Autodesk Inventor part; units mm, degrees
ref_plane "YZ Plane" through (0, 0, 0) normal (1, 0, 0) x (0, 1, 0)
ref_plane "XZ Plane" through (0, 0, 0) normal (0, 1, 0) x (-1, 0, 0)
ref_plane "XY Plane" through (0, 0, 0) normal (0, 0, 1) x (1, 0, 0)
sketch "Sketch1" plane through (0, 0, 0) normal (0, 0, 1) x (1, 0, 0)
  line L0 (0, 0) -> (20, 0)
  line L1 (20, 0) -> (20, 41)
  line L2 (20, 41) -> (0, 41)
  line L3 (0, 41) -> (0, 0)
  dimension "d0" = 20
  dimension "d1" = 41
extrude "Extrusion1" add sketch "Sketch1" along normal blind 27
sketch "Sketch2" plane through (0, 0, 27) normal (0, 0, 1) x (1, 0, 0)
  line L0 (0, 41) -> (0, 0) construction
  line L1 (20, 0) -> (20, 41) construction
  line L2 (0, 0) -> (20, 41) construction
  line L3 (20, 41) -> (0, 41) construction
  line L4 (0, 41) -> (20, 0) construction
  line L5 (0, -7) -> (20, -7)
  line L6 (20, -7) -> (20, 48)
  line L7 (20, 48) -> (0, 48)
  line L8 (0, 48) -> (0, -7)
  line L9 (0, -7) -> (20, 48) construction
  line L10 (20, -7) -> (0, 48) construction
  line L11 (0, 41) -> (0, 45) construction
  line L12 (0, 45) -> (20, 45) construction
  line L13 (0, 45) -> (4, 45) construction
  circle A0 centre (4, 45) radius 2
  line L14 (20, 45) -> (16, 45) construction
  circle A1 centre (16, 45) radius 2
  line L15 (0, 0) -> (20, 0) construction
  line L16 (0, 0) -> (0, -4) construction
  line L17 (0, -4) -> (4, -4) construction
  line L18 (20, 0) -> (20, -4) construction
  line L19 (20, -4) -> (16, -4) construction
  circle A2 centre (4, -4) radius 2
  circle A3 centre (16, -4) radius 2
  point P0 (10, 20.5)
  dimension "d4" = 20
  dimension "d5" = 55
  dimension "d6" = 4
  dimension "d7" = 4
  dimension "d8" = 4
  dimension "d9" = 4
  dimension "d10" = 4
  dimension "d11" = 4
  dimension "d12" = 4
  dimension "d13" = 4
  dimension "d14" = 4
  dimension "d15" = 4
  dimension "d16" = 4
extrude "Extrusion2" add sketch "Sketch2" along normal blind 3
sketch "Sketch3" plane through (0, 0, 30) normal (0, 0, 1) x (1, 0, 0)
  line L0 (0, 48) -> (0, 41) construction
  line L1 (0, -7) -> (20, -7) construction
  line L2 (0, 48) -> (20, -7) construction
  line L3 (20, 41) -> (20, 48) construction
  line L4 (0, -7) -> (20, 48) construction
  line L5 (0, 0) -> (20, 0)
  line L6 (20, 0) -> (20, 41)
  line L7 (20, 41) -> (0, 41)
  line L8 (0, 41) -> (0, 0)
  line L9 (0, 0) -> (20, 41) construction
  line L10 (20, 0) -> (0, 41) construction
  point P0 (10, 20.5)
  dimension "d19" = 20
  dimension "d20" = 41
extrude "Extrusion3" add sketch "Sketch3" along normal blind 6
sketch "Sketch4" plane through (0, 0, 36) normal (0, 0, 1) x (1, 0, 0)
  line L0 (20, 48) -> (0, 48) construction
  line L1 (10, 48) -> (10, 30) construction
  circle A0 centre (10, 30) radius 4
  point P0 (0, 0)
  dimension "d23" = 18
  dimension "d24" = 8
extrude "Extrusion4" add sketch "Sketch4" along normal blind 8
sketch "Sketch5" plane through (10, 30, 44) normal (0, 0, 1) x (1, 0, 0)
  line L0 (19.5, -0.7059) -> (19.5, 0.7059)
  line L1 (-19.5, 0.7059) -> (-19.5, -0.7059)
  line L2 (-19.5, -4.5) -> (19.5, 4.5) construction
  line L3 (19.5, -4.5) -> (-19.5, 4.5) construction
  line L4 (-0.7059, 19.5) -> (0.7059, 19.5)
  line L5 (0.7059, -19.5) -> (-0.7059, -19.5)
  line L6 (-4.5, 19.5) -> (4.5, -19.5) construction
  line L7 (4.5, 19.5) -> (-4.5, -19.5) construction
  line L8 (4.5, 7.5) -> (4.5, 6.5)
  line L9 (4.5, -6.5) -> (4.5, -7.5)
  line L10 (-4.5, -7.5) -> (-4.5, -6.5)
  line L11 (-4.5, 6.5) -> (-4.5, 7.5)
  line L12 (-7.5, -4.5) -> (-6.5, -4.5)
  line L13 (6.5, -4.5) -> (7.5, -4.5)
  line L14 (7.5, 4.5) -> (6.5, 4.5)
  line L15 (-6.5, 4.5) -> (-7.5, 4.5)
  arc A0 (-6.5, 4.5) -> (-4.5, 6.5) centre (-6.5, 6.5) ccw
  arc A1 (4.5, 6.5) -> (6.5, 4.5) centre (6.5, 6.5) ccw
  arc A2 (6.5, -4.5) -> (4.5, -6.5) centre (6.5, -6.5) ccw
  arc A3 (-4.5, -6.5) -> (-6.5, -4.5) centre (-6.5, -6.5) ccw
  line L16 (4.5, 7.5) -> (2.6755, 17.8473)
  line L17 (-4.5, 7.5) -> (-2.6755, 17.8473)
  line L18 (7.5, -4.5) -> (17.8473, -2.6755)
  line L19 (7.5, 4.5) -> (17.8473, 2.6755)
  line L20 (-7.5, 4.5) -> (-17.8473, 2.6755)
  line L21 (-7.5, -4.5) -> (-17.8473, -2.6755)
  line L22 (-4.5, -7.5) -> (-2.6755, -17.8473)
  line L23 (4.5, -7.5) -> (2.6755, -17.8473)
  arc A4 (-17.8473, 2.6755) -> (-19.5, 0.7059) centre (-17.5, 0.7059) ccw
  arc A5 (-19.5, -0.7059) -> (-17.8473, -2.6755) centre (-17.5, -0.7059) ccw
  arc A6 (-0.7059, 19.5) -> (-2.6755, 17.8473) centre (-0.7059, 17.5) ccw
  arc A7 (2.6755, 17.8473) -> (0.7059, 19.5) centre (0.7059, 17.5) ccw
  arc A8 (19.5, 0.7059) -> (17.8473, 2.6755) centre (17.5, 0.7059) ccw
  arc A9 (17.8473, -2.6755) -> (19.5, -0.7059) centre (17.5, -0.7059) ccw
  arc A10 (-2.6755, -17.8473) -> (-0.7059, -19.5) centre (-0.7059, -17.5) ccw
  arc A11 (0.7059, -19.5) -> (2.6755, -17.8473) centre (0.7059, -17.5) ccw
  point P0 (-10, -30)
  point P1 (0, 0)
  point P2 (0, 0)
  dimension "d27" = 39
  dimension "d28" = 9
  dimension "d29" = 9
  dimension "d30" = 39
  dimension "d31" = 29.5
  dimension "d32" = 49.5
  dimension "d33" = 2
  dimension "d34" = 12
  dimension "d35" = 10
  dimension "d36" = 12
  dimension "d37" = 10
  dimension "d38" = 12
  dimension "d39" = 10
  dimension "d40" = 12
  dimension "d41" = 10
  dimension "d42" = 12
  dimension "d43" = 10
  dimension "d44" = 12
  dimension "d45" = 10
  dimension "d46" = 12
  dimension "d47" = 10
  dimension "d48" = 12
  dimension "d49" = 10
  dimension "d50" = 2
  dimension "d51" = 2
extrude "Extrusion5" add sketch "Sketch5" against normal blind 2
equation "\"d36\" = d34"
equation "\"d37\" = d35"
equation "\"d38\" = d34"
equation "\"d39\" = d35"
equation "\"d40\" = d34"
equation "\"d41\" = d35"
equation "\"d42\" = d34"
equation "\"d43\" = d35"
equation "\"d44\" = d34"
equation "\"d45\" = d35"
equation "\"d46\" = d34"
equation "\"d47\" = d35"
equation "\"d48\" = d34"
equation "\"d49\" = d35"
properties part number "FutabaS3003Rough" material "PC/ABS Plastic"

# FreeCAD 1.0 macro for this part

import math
import FreeCAD as App
import Part
import Sketcher
Q = App.Units.Quantity

doc = App.newDocument("Part")
body = doc.addObject("PartDesign::Body", "Body")

# Sketch on XY plane
sketch1 = body.newObject("Sketcher::SketchObject", "Sketch")
sketch1.AttachmentSupport = (doc.getObject("XY_Plane"), [""])
sketch1.MapMode = "FlatFace"
sketch1.addGeometry(Part.LineSegment(App.Vector(0, 41, 0), App.Vector(0, 0, 0)), False)
sketch1.addGeometry(Part.LineSegment(App.Vector(0, 0, 0), App.Vector(20, 0, 0)), False)
sketch1.addGeometry(Part.LineSegment(App.Vector(20, 0, 0), App.Vector(20, 41, 0)), False)
sketch1.addGeometry(Part.LineSegment(App.Vector(20, 41, 0), App.Vector(0, 41, 0)), False)
sketch1.addConstraint(Sketcher.Constraint("Coincident", 0, 2, 1, 1))
sketch1.addConstraint(Sketcher.Constraint("Coincident", 1, 2, 2, 1))
sketch1.addConstraint(Sketcher.Constraint("Coincident", 2, 2, 3, 1))
sketch1.addConstraint(Sketcher.Constraint("Coincident", 3, 2, 0, 1))
sketch1.addConstraint(Sketcher.Constraint("Vertical", 0))
sketch1.addConstraint(Sketcher.Constraint("Horizontal", 1))
sketch1.addConstraint(Sketcher.Constraint("Vertical", 2))
sketch1.addConstraint(Sketcher.Constraint("Horizontal", 3))
sketch1.addConstraint(Sketcher.Constraint("Coincident", 0, 2, -1, 1))
sketch1.addConstraint(Sketcher.Constraint("DistanceX", 1, 1, 1, 2, Q("20 mm")))
sketch1.addConstraint(Sketcher.Constraint("DistanceY", 0, 2, 0, 1, Q("41 mm")))
pad1 = body.newObject("PartDesign::Pad", "Pad")
pad1.Profile = sketch1
pad1.Length = 27

# Sketch on XY plane
sketch2 = body.newObject("Sketcher::SketchObject", "Sketch001")
sketch2.AttachmentSupport = (doc.getObject("XY_Plane"), [""])
sketch2.MapMode = "FlatFace"
sketch2.AttachmentOffset = App.Placement(App.Vector(0, 0, 27), App.Rotation())
sketch2.addGeometry(Part.LineSegment(App.Vector(0, 48, 0), App.Vector(0, -7, 0)), False)
sketch2.addGeometry(Part.LineSegment(App.Vector(0, -7, 0), App.Vector(20, -7, 0)), False)
sketch2.addGeometry(Part.LineSegment(App.Vector(20, -7, 0), App.Vector(20, 48, 0)), False)
sketch2.addGeometry(Part.LineSegment(App.Vector(20, 48, 0), App.Vector(0, 48, 0)), False)
sketch2.addGeometry(Part.Circle(App.Vector(4, -4, 0), App.Vector(0, 0, 1), 2), False)
sketch2.addGeometry(Part.Circle(App.Vector(16, -4, 0), App.Vector(0, 0, 1), 2), False)
sketch2.addGeometry(Part.Circle(App.Vector(4, 45, 0), App.Vector(0, 0, 1), 2), False)
sketch2.addGeometry(Part.Circle(App.Vector(16, 45, 0), App.Vector(0, 0, 1), 2), False)
sketch2.addConstraint(Sketcher.Constraint("Coincident", 0, 2, 1, 1))
sketch2.addConstraint(Sketcher.Constraint("Coincident", 1, 2, 2, 1))
sketch2.addConstraint(Sketcher.Constraint("Coincident", 2, 2, 3, 1))
sketch2.addConstraint(Sketcher.Constraint("Coincident", 3, 2, 0, 1))
sketch2.addConstraint(Sketcher.Constraint("Vertical", 0))
sketch2.addConstraint(Sketcher.Constraint("Horizontal", 1))
sketch2.addConstraint(Sketcher.Constraint("Vertical", 2))
sketch2.addConstraint(Sketcher.Constraint("Horizontal", 3))
sketch2.addConstraint(Sketcher.Constraint("Equal", 4, 5))
sketch2.addConstraint(Sketcher.Constraint("Equal", 5, 6))
sketch2.addConstraint(Sketcher.Constraint("Equal", 6, 7))
sketch2.addConstraint(Sketcher.Constraint("PointOnObject", 0, 2, -2))
sketch2.addConstraint(Sketcher.Constraint("Horizontal", 4, 3, 5, 3))
sketch2.addConstraint(Sketcher.Constraint("Horizontal", 6, 3, 7, 3))
sketch2.addConstraint(Sketcher.Constraint("Vertical", 4, 3, 6, 3))
sketch2.addConstraint(Sketcher.Constraint("Vertical", 5, 3, 7, 3))
sketch2.addConstraint(Sketcher.Constraint("Diameter", 4, Q("4 mm")))
sketch2.addConstraint(Sketcher.Constraint("DistanceX", 1, 1, 1, 2, Q("20 mm")))
sketch2.addConstraint(Sketcher.Constraint("DistanceY", 0, 2, 0, 1, Q("55 mm")))
sketch2.addConstraint(Sketcher.Constraint("DistanceX", -1, 1, 4, 3, Q("4 mm")))
sketch2.addConstraint(Sketcher.Constraint("DistanceY", 4, 3, -1, 1, Q("4 mm")))
sketch2.addConstraint(Sketcher.Constraint("DistanceX", 5, 3, 1, 2, Q("4 mm")))
sketch2.addConstraint(Sketcher.Constraint("DistanceY", -1, 1, 6, 3, Q("45 mm")))
sketch2.addConstraint(Sketcher.Constraint("DistanceY", 0, 2, -1, 1, Q("7 mm")))
pad2 = body.newObject("PartDesign::Pad", "Pad001")
pad2.Profile = sketch2
pad2.Length = 3

# Sketch on XY plane
sketch3 = body.newObject("Sketcher::SketchObject", "Sketch002")
sketch3.AttachmentSupport = (doc.getObject("XY_Plane"), [""])
sketch3.MapMode = "FlatFace"
sketch3.AttachmentOffset = App.Placement(App.Vector(0, 0, 30), App.Rotation())
sketch3.addGeometry(Part.LineSegment(App.Vector(0, 41, 0), App.Vector(0, 0, 0)), False)
sketch3.addGeometry(Part.LineSegment(App.Vector(0, 0, 0), App.Vector(20, 0, 0)), False)
sketch3.addGeometry(Part.LineSegment(App.Vector(20, 0, 0), App.Vector(20, 41, 0)), False)
sketch3.addGeometry(Part.LineSegment(App.Vector(20, 41, 0), App.Vector(0, 41, 0)), False)
sketch3.addConstraint(Sketcher.Constraint("Coincident", 0, 2, 1, 1))
sketch3.addConstraint(Sketcher.Constraint("Coincident", 1, 2, 2, 1))
sketch3.addConstraint(Sketcher.Constraint("Coincident", 2, 2, 3, 1))
sketch3.addConstraint(Sketcher.Constraint("Coincident", 3, 2, 0, 1))
sketch3.addConstraint(Sketcher.Constraint("Vertical", 0))
sketch3.addConstraint(Sketcher.Constraint("Horizontal", 1))
sketch3.addConstraint(Sketcher.Constraint("Vertical", 2))
sketch3.addConstraint(Sketcher.Constraint("Horizontal", 3))
sketch3.addConstraint(Sketcher.Constraint("Coincident", 0, 2, -1, 1))
sketch3.addConstraint(Sketcher.Constraint("DistanceX", 1, 1, 1, 2, Q("20 mm")))
sketch3.addConstraint(Sketcher.Constraint("DistanceY", 0, 2, 0, 1, Q("41 mm")))
pad3 = body.newObject("PartDesign::Pad", "Pad002")
pad3.Profile = sketch3
pad3.Length = 6

# Sketch on XY plane
sketch4 = body.newObject("Sketcher::SketchObject", "Sketch003")
sketch4.AttachmentSupport = (doc.getObject("XY_Plane"), [""])
sketch4.MapMode = "FlatFace"
sketch4.AttachmentOffset = App.Placement(App.Vector(0, 0, 36), App.Rotation())
sketch4.addGeometry(Part.Circle(App.Vector(10, 30, 0), App.Vector(0, 0, 1), 4), False)
sketch4.addConstraint(Sketcher.Constraint("Diameter", 0, Q("8 mm")))
sketch4.addConstraint(Sketcher.Constraint("DistanceX", -1, 1, 0, 3, Q("10 mm")))
sketch4.addConstraint(Sketcher.Constraint("DistanceY", -1, 1, 0, 3, Q("30 mm")))
pad4 = body.newObject("PartDesign::Pad", "Pad003")
pad4.Profile = sketch4
pad4.Length = 8

# Sketch on XY plane
sketch5 = body.newObject("Sketcher::SketchObject", "Sketch004")
sketch5.AttachmentSupport = (doc.getObject("XY_Plane"), [""])
sketch5.MapMode = "FlatFace"
sketch5.AttachmentOffset = App.Placement(App.Vector(0, 0, 44), App.Rotation())
sketch5.addGeometry(Part.ArcOfCircle(Part.Circle(App.Vector(27.5, 29.2941, 0), App.Vector(0, 0, 1), 1.999985), math.radians(-79.99982), math.radians(0)), False)
sketch5.addGeometry(Part.LineSegment(App.Vector(29.5, 29.2941, 0), App.Vector(29.5, 30.7059, 0)), False)
sketch5.addGeometry(Part.ArcOfCircle(Part.Circle(App.Vector(27.5, 30.7059, 0), App.Vector(0, 0, 1), 2), math.radians(0), math.radians(79.99982)), False)
sketch5.addGeometry(Part.LineSegment(App.Vector(27.8473, 32.6755, 0), App.Vector(17.5, 34.5, 0)), False)
sketch5.addGeometry(Part.LineSegment(App.Vector(17.5, 34.5, 0), App.Vector(16.5, 34.5, 0)), False)
sketch5.addGeometry(Part.ArcOfCircle(Part.Circle(App.Vector(16.5, 36.5, 0), App.Vector(0, 0, 1), 2), math.radians(180), math.radians(270)), False)
sketch5.addGeometry(Part.LineSegment(App.Vector(14.5, 36.5, 0), App.Vector(14.5, 37.5, 0)), False)
sketch5.addGeometry(Part.LineSegment(App.Vector(14.5, 37.5, 0), App.Vector(12.6755, 47.8473, 0)), False)
sketch5.addGeometry(Part.ArcOfCircle(Part.Circle(App.Vector(10.7059, 47.5, 0), App.Vector(0, 0, 1), 1.999985), math.radians(10.00018), math.radians(90)), False)
sketch5.addGeometry(Part.LineSegment(App.Vector(10.7059, 49.5, 0), App.Vector(9.2941, 49.5, 0)), False)
sketch5.addGeometry(Part.ArcOfCircle(Part.Circle(App.Vector(9.2941, 47.5, 0), App.Vector(0, 0, 1), 2), math.radians(90), math.radians(169.99982)), False)
sketch5.addGeometry(Part.LineSegment(App.Vector(7.3245, 47.8473, 0), App.Vector(5.5, 37.5, 0)), False)
sketch5.addGeometry(Part.LineSegment(App.Vector(5.5, 37.5, 0), App.Vector(5.5, 36.5, 0)), False)
sketch5.addGeometry(Part.ArcOfCircle(Part.Circle(App.Vector(3.5, 36.5, 0), App.Vector(0, 0, 1), 2), math.radians(-90), math.radians(0)), False)
sketch5.addGeometry(Part.LineSegment(App.Vector(3.5, 34.5, 0), App.Vector(2.5, 34.5, 0)), False)
sketch5.addGeometry(Part.LineSegment(App.Vector(2.5, 34.5, 0), App.Vector(-7.8473, 32.6755, 0)), False)
sketch5.addGeometry(Part.ArcOfCircle(Part.Circle(App.Vector(-7.5, 30.7059, 0), App.Vector(0, 0, 1), 1.999985), math.radians(100.00018), math.radians(180)), False)
sketch5.addGeometry(Part.LineSegment(App.Vector(-9.5, 30.7059, 0), App.Vector(-9.5, 29.2941, 0)), False)
sketch5.addGeometry(Part.ArcOfCircle(Part.Circle(App.Vector(-7.5, 29.2941, 0), App.Vector(0, 0, 1), 2), math.radians(180), math.radians(259.99982)), False)
sketch5.addGeometry(Part.LineSegment(App.Vector(-7.8473, 27.3245, 0), App.Vector(2.5, 25.5, 0)), False)
sketch5.addGeometry(Part.LineSegment(App.Vector(2.5, 25.5, 0), App.Vector(3.5, 25.5, 0)), False)
sketch5.addGeometry(Part.ArcOfCircle(Part.Circle(App.Vector(3.5, 23.5, 0), App.Vector(0, 0, 1), 2), math.radians(0), math.radians(90)), False)
sketch5.addGeometry(Part.LineSegment(App.Vector(5.5, 23.5, 0), App.Vector(5.5, 22.5, 0)), False)
sketch5.addGeometry(Part.LineSegment(App.Vector(5.5, 22.5, 0), App.Vector(7.3245, 12.1527, 0)), False)
sketch5.addGeometry(Part.ArcOfCircle(Part.Circle(App.Vector(9.2941, 12.5, 0), App.Vector(0, 0, 1), 1.999985), math.radians(-169.99982), math.radians(-90)), False)
sketch5.addGeometry(Part.LineSegment(App.Vector(9.2941, 10.5, 0), App.Vector(10.7059, 10.5, 0)), False)
sketch5.addGeometry(Part.ArcOfCircle(Part.Circle(App.Vector(10.7059, 12.5, 0), App.Vector(0, 0, 1), 2), math.radians(-90), math.radians(-10.00018)), False)
sketch5.addGeometry(Part.LineSegment(App.Vector(12.6755, 12.1527, 0), App.Vector(14.5, 22.5, 0)), False)
sketch5.addGeometry(Part.LineSegment(App.Vector(14.5, 22.5, 0), App.Vector(14.5, 23.5, 0)), False)
sketch5.addGeometry(Part.ArcOfCircle(Part.Circle(App.Vector(16.5, 23.5, 0), App.Vector(0, 0, 1), 2), math.radians(90), math.radians(180)), False)
sketch5.addGeometry(Part.LineSegment(App.Vector(16.5, 25.5, 0), App.Vector(17.5, 25.5, 0)), False)
sketch5.addGeometry(Part.LineSegment(App.Vector(17.5, 25.5, 0), App.Vector(27.8473, 27.3245, 0)), False)
sketch5.addConstraint(Sketcher.Constraint("Tangent", 0, 2, 1, 1))
sketch5.addConstraint(Sketcher.Constraint("Tangent", 1, 2, 2, 1))
sketch5.addConstraint(Sketcher.Constraint("Tangent", 2, 2, 3, 1))
sketch5.addConstraint(Sketcher.Constraint("Coincident", 3, 2, 4, 1))
sketch5.addConstraint(Sketcher.Constraint("Tangent", 4, 2, 5, 2))
sketch5.addConstraint(Sketcher.Constraint("Tangent", 5, 1, 6, 1))
sketch5.addConstraint(Sketcher.Constraint("Coincident", 6, 2, 7, 1))
sketch5.addConstraint(Sketcher.Constraint("Tangent", 7, 2, 8, 1))
sketch5.addConstraint(Sketcher.Constraint("Tangent", 8, 2, 9, 1))
sketch5.addConstraint(Sketcher.Constraint("Tangent", 9, 2, 10, 1))
sketch5.addConstraint(Sketcher.Constraint("Tangent", 10, 2, 11, 1))
sketch5.addConstraint(Sketcher.Constraint("Coincident", 11, 2, 12, 1))
sketch5.addConstraint(Sketcher.Constraint("Tangent", 12, 2, 13, 2))
sketch5.addConstraint(Sketcher.Constraint("Tangent", 13, 1, 14, 1))
sketch5.addConstraint(Sketcher.Constraint("Coincident", 14, 2, 15, 1))
sketch5.addConstraint(Sketcher.Constraint("Tangent", 15, 2, 16, 1))
sketch5.addConstraint(Sketcher.Constraint("Tangent", 16, 2, 17, 1))
sketch5.addConstraint(Sketcher.Constraint("Tangent", 17, 2, 18, 1))
sketch5.addConstraint(Sketcher.Constraint("Tangent", 18, 2, 19, 1))
sketch5.addConstraint(Sketcher.Constraint("Coincident", 19, 2, 20, 1))
sketch5.addConstraint(Sketcher.Constraint("Tangent", 20, 2, 21, 2))
sketch5.addConstraint(Sketcher.Constraint("Tangent", 21, 1, 22, 1))
sketch5.addConstraint(Sketcher.Constraint("Coincident", 22, 2, 23, 1))
sketch5.addConstraint(Sketcher.Constraint("Tangent", 23, 2, 24, 1))
sketch5.addConstraint(Sketcher.Constraint("Tangent", 24, 2, 25, 1))
sketch5.addConstraint(Sketcher.Constraint("Tangent", 25, 2, 26, 1))
sketch5.addConstraint(Sketcher.Constraint("Tangent", 26, 2, 27, 1))
sketch5.addConstraint(Sketcher.Constraint("Coincident", 27, 2, 28, 1))
sketch5.addConstraint(Sketcher.Constraint("Tangent", 28, 2, 29, 2))
sketch5.addConstraint(Sketcher.Constraint("Tangent", 29, 1, 30, 1))
sketch5.addConstraint(Sketcher.Constraint("Coincident", 30, 2, 31, 1))
sketch5.addConstraint(Sketcher.Constraint("Tangent", 31, 2, 0, 1))
sketch5.addConstraint(Sketcher.Constraint("Vertical", 1))
sketch5.addConstraint(Sketcher.Constraint("Horizontal", 4))
sketch5.addConstraint(Sketcher.Constraint("Vertical", 6))
sketch5.addConstraint(Sketcher.Constraint("Horizontal", 9))
sketch5.addConstraint(Sketcher.Constraint("Vertical", 12))
sketch5.addConstraint(Sketcher.Constraint("Horizontal", 14))
sketch5.addConstraint(Sketcher.Constraint("Vertical", 17))
sketch5.addConstraint(Sketcher.Constraint("Horizontal", 20))
sketch5.addConstraint(Sketcher.Constraint("Vertical", 22))
sketch5.addConstraint(Sketcher.Constraint("Horizontal", 25))
sketch5.addConstraint(Sketcher.Constraint("Vertical", 28))
sketch5.addConstraint(Sketcher.Constraint("Horizontal", 30))
sketch5.addConstraint(Sketcher.Constraint("Equal", 0, 2))
sketch5.addConstraint(Sketcher.Constraint("Equal", 2, 5))
sketch5.addConstraint(Sketcher.Constraint("Equal", 5, 8))
sketch5.addConstraint(Sketcher.Constraint("Equal", 8, 10))
sketch5.addConstraint(Sketcher.Constraint("Equal", 10, 13))
sketch5.addConstraint(Sketcher.Constraint("Equal", 13, 16))
sketch5.addConstraint(Sketcher.Constraint("Equal", 16, 18))
sketch5.addConstraint(Sketcher.Constraint("Equal", 18, 21))
sketch5.addConstraint(Sketcher.Constraint("Equal", 21, 24))
sketch5.addConstraint(Sketcher.Constraint("Equal", 24, 26))
sketch5.addConstraint(Sketcher.Constraint("Equal", 26, 29))
sketch5.addConstraint(Sketcher.Constraint("Perpendicular", 3, 11))
sketch5.addConstraint(Sketcher.Constraint("Perpendicular", 7, 15))
sketch5.addConstraint(Sketcher.Constraint("Perpendicular", 11, 19))
sketch5.addConstraint(Sketcher.Constraint("Perpendicular", 15, 23))
sketch5.addConstraint(Sketcher.Constraint("Perpendicular", 19, 27))
sketch5.addConstraint(Sketcher.Constraint("Perpendicular", 23, 31))
sketch5.addConstraint(Sketcher.Constraint("Horizontal", 5, 3, 13, 3))
sketch5.addConstraint(Sketcher.Constraint("Horizontal", 2, 3, 16, 3))
sketch5.addConstraint(Sketcher.Constraint("Horizontal", 0, 3, 18, 3))
sketch5.addConstraint(Sketcher.Constraint("Horizontal", 21, 3, 29, 3))
sketch5.addConstraint(Sketcher.Constraint("Horizontal", 7, 2, 10, 2))
sketch5.addConstraint(Sketcher.Constraint("Horizontal", 6, 2, 11, 2))
sketch5.addConstraint(Sketcher.Constraint("Horizontal", 22, 2, 27, 2))
sketch5.addConstraint(Sketcher.Constraint("Vertical", 13, 3, 21, 3))
sketch5.addConstraint(Sketcher.Constraint("Vertical", 10, 3, 24, 3))
sketch5.addConstraint(Sketcher.Constraint("Vertical", 8, 3, 26, 3))
sketch5.addConstraint(Sketcher.Constraint("Vertical", 14, 2, 19, 2))
sketch5.addConstraint(Sketcher.Constraint("Equal", 4, 14))
sketch5.addConstraint(Sketcher.Constraint("Equal", 25, 1))
sketch5.addConstraint(Sketcher.Constraint("Equal", 30, 6))
sketch5.addConstraint(Sketcher.Constraint("Equal", 12, 22))
sketch5.addConstraint(Sketcher.Constraint("Equal", 3, 7))
sketch5.addConstraint(Sketcher.Constraint("Radius", 0, Q("2 mm")))
sketch5.addConstraint(Sketcher.Constraint("Angle", 19, Q("-10 deg")))
sketch5.addConstraint(Sketcher.Constraint("DistanceX", 3, 2, 2, 3, Q("10 mm")))
sketch5.addConstraint(Sketcher.Constraint("DistanceX", 11, 2, 6, 2, Q("9 mm")))
sketch5.addConstraint(Sketcher.Constraint("DistanceX", -1, 1, 0, 2, Q("29.5 mm")))
sketch5.addConstraint(Sketcher.Constraint("DistanceY", -1, 1, 8, 2, Q("49.5 mm")))
sketch5.addConstraint(Sketcher.Constraint("DistanceX", 4, 2, 4, 1, Q("1 mm")))
pad5 = body.newObject("PartDesign::Pad", "Pad004")
pad5.Profile = sketch5
pad5.Length = 2
pad5.Reversed = True

doc.recompute()
